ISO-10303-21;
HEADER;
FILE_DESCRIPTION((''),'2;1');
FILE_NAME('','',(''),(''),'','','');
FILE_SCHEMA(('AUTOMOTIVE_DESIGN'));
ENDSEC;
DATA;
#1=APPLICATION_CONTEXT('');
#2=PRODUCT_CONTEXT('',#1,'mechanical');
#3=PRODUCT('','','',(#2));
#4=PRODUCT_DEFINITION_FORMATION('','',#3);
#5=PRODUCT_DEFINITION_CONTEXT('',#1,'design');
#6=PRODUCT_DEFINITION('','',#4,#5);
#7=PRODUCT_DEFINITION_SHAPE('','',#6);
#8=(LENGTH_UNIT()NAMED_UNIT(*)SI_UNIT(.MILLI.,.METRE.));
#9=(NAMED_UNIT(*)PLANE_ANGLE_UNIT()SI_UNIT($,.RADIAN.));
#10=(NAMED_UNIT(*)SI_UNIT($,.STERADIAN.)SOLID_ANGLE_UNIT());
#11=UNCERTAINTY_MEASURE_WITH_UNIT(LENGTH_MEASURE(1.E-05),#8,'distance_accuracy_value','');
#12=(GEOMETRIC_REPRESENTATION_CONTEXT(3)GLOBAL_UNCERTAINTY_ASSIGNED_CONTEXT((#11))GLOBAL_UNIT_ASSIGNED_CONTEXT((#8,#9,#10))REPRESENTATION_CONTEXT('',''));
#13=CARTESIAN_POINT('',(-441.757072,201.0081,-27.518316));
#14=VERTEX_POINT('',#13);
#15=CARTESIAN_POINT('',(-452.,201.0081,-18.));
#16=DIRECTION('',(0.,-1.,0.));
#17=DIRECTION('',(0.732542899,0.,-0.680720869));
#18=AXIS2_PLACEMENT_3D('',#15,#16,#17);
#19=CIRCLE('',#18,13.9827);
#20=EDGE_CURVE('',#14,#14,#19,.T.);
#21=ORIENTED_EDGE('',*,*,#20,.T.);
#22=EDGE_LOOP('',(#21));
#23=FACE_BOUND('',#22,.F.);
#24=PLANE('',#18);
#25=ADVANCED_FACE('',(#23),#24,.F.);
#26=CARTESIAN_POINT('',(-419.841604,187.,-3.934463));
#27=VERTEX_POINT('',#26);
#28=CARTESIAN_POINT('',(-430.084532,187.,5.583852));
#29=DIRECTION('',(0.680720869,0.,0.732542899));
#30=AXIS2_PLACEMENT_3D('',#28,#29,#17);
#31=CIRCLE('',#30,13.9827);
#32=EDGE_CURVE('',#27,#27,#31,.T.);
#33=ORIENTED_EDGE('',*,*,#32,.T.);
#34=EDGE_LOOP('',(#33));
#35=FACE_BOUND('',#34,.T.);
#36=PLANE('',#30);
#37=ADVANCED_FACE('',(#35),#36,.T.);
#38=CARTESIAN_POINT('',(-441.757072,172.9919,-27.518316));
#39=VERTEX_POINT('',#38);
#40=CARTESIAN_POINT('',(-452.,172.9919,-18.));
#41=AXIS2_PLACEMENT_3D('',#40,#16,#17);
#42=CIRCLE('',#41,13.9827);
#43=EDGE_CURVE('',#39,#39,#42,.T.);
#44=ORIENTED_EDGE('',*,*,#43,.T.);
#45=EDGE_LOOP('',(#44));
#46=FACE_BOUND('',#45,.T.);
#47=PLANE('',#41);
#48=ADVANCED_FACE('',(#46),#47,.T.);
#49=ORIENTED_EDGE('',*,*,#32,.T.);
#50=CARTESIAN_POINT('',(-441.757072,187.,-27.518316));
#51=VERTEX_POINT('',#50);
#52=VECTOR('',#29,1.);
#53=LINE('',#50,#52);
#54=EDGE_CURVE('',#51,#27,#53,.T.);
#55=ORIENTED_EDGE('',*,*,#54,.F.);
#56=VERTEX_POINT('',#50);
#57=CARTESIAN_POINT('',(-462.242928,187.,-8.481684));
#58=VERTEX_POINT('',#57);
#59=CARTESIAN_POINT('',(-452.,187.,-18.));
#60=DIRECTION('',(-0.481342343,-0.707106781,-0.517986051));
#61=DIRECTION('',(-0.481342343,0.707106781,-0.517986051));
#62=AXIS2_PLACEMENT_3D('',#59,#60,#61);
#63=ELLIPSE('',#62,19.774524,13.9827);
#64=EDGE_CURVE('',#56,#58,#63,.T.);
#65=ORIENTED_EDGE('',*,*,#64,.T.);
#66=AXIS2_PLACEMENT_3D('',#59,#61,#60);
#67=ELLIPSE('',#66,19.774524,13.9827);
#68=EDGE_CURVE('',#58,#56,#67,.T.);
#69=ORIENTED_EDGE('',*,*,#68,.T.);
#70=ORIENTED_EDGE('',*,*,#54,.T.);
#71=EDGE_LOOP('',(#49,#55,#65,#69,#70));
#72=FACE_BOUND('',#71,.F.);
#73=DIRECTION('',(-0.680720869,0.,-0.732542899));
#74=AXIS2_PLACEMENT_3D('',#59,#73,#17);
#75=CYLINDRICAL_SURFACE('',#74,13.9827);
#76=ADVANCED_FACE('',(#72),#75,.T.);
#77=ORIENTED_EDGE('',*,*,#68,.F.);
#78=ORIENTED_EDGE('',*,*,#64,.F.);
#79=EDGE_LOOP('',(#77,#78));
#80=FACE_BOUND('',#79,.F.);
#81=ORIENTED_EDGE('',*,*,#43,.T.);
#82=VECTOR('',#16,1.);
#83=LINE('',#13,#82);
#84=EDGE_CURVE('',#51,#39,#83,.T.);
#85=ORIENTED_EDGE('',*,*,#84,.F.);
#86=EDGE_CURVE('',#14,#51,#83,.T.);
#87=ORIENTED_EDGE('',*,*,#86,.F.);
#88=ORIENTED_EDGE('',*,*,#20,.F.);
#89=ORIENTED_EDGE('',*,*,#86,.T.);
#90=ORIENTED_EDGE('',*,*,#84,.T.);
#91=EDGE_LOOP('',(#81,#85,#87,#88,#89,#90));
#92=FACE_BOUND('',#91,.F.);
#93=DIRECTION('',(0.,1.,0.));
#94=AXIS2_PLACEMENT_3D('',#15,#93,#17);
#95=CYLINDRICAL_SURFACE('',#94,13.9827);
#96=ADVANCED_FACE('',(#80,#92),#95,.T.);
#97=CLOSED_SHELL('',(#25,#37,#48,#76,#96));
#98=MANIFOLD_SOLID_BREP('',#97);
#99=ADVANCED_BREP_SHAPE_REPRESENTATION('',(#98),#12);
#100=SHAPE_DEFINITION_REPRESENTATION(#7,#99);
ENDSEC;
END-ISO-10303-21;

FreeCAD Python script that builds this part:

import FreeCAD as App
import Part
import Sketcher

V = App.Vector
Q = App.Units.Quantity

doc = App.newDocument("Part")
params = doc.addObject("Spreadsheet::Sheet", "Params")
for row, (alias, value) in enumerate([
    ("sketch1_diameter", "1.101 in"),
    ("pad1_length", "1.103 in"),
    ("sketch2_diameter", "1.101 in"),
    ("pad2_length", "1.2675 in"),
], start=1):
    params.set(f"A{row}", alias)
    params.set(f"B{row}", "=" + value)
    params.setAlias(f"B{row}", alias)

body = doc.addObject("PartDesign::Body", "Body")

sketch1 = body.newObject("Sketcher::SketchObject", "Sketch")
sketch1.AttachmentSupport = (doc.getObject("XZ_Plane"), [""])
sketch1.MapMode = "FlatFace"
sketch1.AttachmentOffset = App.Placement(V(0, 0, -0.5515 * 25.4), App.Rotation())
sketch1.addGeometry(Part.Circle(V(0, 0, 0), V(0, 0, 1), 14), False)
sketch1.addConstraint([
    Sketcher.Constraint("Coincident", 0, 3, -1, 1),
    Sketcher.Constraint("Diameter", 0, Q("1.101 in")),
])
sketch1.setExpression("Constraints[1]", "Params.sketch1_diameter")
pad1 = body.newObject("PartDesign::Pad", "Pad")
pad1.Profile = sketch1
pad1.setExpression("Length", "Params.pad1_length")
body2 = doc.addObject("PartDesign::Body", "Body001")

sketch2 = body2.newObject("Sketcher::SketchObject", "Sketch001")
sketch2.AttachmentSupport = (doc.getObject("XY_Plane001"), [""])
sketch2.MapMode = "FlatFace"
sketch2.addGeometry(Part.Circle(V(0, 0, 0), V(0, 0, 1), 14), False)
sketch2.addConstraint([
    Sketcher.Constraint("Coincident", 0, 3, -1, 1),
    Sketcher.Constraint("Diameter", 0, Q("1.101 in")),
])
sketch2.setExpression("Constraints[1]", "Params.sketch2_diameter")
pad2 = body2.newObject("PartDesign::Pad", "Pad001")
pad2.Profile = sketch2
pad2.setExpression("Length", "Params.pad2_length")
doc.recompute()

boolean = body2.newObject("PartDesign::Boolean", "Boolean")
boolean.Type = "Fuse"
boolean.addObjects([body])
body3 = doc.addObject("PartDesign::Body", "Body002")
doc.recompute()

body2.Placement = App.Placement(V(-452, 187, -18), App.Rotation(V(0, 1, 0), 42.9))
boolean2 = body3.newObject("PartDesign::Boolean", "Boolean001")
boolean2.Type = "Fuse"
boolean2.addObjects([body2])

doc.recompute()
